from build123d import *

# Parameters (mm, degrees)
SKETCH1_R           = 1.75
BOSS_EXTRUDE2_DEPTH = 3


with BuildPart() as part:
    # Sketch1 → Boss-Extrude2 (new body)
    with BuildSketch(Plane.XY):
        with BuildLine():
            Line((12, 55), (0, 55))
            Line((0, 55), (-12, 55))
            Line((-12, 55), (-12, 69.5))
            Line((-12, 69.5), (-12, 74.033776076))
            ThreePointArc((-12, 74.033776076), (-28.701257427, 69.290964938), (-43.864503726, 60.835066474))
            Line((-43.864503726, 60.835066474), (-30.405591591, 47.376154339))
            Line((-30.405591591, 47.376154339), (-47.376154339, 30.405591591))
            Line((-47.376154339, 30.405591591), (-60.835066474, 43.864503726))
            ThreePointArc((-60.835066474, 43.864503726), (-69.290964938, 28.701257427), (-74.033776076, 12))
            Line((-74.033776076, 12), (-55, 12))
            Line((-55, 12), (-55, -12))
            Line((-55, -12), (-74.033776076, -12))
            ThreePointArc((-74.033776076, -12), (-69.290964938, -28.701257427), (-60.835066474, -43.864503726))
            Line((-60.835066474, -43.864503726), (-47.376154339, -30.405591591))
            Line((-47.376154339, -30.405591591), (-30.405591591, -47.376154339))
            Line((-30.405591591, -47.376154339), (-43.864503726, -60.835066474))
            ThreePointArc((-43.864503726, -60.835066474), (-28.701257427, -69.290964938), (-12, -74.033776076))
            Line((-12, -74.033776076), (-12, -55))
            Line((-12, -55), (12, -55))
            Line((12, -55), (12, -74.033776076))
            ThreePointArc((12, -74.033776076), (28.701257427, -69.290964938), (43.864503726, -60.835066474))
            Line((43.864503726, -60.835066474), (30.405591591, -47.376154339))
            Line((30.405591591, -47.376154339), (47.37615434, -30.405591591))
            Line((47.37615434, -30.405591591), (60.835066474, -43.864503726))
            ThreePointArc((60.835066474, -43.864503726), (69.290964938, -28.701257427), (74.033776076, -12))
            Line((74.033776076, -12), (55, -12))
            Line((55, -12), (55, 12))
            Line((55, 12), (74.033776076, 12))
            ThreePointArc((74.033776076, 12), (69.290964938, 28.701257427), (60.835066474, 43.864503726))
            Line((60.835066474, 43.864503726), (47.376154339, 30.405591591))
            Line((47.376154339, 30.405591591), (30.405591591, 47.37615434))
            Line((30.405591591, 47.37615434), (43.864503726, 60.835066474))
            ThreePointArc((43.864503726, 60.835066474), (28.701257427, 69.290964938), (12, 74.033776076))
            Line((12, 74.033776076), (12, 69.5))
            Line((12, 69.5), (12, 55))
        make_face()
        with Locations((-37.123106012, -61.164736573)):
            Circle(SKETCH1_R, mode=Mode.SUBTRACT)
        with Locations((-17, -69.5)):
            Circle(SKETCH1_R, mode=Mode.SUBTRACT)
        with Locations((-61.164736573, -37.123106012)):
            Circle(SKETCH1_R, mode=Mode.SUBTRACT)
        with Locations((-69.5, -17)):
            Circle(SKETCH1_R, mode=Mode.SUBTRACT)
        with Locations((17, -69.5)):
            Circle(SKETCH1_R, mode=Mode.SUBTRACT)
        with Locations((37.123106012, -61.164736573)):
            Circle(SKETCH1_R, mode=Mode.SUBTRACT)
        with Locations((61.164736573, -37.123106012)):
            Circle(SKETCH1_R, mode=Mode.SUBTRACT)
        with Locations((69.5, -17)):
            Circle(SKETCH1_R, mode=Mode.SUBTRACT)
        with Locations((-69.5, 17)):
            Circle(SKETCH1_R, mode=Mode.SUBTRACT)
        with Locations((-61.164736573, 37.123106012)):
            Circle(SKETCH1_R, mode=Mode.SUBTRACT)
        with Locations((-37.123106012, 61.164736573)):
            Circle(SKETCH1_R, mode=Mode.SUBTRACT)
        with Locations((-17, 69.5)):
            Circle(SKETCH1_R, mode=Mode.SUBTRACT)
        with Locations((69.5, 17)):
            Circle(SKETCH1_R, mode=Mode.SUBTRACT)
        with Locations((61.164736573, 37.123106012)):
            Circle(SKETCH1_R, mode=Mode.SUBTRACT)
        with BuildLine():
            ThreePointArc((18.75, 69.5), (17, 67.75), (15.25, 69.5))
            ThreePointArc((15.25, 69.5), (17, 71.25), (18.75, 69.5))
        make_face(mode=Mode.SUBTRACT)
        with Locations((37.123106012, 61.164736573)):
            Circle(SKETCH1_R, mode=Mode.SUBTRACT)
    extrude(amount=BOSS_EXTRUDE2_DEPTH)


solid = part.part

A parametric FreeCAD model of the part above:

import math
import FreeCAD as App
import Part
import Sketcher

doc = App.newDocument("Part")
body = doc.addObject("PartDesign::Body", "Body")

# Sketch on XY plane
sketch1 = doc.addObject("Sketcher::SketchObject", "Sketch")
body.addObject(sketch1)
sketch1.AttachmentSupport = (doc.XY_Plane, [""])
sketch1.MapMode = "FlatFace"
sketch1.addGeometry([
    Part.LineSegment(App.Vector(12, 55, 0), App.Vector(-12, 55, 0)),  # 0
    Part.LineSegment(App.Vector(-12, 55, 0), App.Vector(-12, 74.033776, 0)),  # 1
    Part.ArcOfCircle(Part.Circle(App.Vector(0, 0, 0), App.Vector(0, 0, 1), 75), math.radians(99.206896), math.radians(125.793104)),  # 2
    Part.LineSegment(App.Vector(-43.864504, 60.835066, 0), App.Vector(-30.405592, 47.376154, 0)),  # 3
    Part.LineSegment(App.Vector(-30.405592, 47.376154, 0), App.Vector(-47.376154, 30.405592, 0)),  # 4
    Part.LineSegment(App.Vector(-47.376154, 30.405592, 0), App.Vector(-60.835066, 43.864504, 0)),  # 5
    Part.ArcOfCircle(Part.Circle(App.Vector(0, 0, 0), App.Vector(0, 0, 1), 75), math.radians(144.206896), math.radians(170.793104)),  # 6
    Part.LineSegment(App.Vector(-74.033776, 12, 0), App.Vector(-55, 12, 0)),  # 7
    Part.LineSegment(App.Vector(-55, 12, 0), App.Vector(-55, -12, 0)),  # 8
    Part.LineSegment(App.Vector(-55, -12, 0), App.Vector(-74.033776, -12, 0)),  # 9
    Part.ArcOfCircle(Part.Circle(App.Vector(0, 0, 0), App.Vector(0, 0, 1), 75), math.radians(-170.793104), math.radians(-144.206896)),  # 10
    Part.LineSegment(App.Vector(-60.835066, -43.864504, 0), App.Vector(-47.376154, -30.405592, 0)),  # 11
    Part.LineSegment(App.Vector(-47.376154, -30.405592, 0), App.Vector(-30.405592, -47.376154, 0)),  # 12
    Part.LineSegment(App.Vector(-30.405592, -47.376154, 0), App.Vector(-43.864504, -60.835066, 0)),  # 13
    Part.ArcOfCircle(Part.Circle(App.Vector(0, 0, 0), App.Vector(0, 0, 1), 75), math.radians(-125.793104), math.radians(-99.206896)),  # 14
    Part.LineSegment(App.Vector(-12, -74.033776, 0), App.Vector(-12, -55, 0)),  # 15
    Part.LineSegment(App.Vector(-12, -55, 0), App.Vector(12, -55, 0)),  # 16
    Part.LineSegment(App.Vector(12, -55, 0), App.Vector(12, -74.033776, 0)),  # 17
    Part.ArcOfCircle(Part.Circle(App.Vector(0, 0, 0), App.Vector(0, 0, 1), 75), math.radians(-80.793104), math.radians(-54.206896)),  # 18
    Part.LineSegment(App.Vector(43.864504, -60.835066, 0), App.Vector(30.405592, -47.376154, 0)),  # 19
    Part.LineSegment(App.Vector(30.405592, -47.376154, 0), App.Vector(47.376154, -30.405592, 0)),  # 20
    Part.LineSegment(App.Vector(47.376154, -30.405592, 0), App.Vector(60.835066, -43.864504, 0)),  # 21
    Part.ArcOfCircle(Part.Circle(App.Vector(0, 0, 0), App.Vector(0, 0, 1), 75), math.radians(-35.793104), math.radians(-9.206896)),  # 22
    Part.LineSegment(App.Vector(74.033776, -12, 0), App.Vector(55, -12, 0)),  # 23
    Part.LineSegment(App.Vector(55, -12, 0), App.Vector(55, 12, 0)),  # 24
    Part.LineSegment(App.Vector(55, 12, 0), App.Vector(74.033776, 12, 0)),  # 25
    Part.ArcOfCircle(Part.Circle(App.Vector(0, 0, 0), App.Vector(0, 0, 1), 75), math.radians(9.206896), math.radians(35.793104)),  # 26
    Part.LineSegment(App.Vector(60.835066, 43.864504, 0), App.Vector(47.376154, 30.405592, 0)),  # 27
    Part.LineSegment(App.Vector(47.376154, 30.405592, 0), App.Vector(30.405592, 47.376154, 0)),  # 28
    Part.LineSegment(App.Vector(30.405592, 47.376154, 0), App.Vector(43.864504, 60.835066, 0)),  # 29
    Part.ArcOfCircle(Part.Circle(App.Vector(0, 0, 0), App.Vector(0, 0, 1), 75), math.radians(54.206896), math.radians(80.793104)),  # 30
    Part.LineSegment(App.Vector(12, 74.033776, 0), App.Vector(12, 55, 0)),  # 31
    Part.Circle(App.Vector(-37.123106, -61.164737, 0), App.Vector(0, 0, 1), 1.75),  # 32
    Part.Circle(App.Vector(-61.164737, -37.123106, 0), App.Vector(0, 0, 1), 1.75),  # 33
    Part.Circle(App.Vector(-17, -69.5, 0), App.Vector(0, 0, 1), 1.75),  # 34
    Part.Circle(App.Vector(-69.5, -17, 0), App.Vector(0, 0, 1), 1.75),  # 35
    Part.Circle(App.Vector(17, -69.5, 0), App.Vector(0, 0, 1), 1.75),  # 36
    Part.Circle(App.Vector(37.123106, -61.164737, 0), App.Vector(0, 0, 1), 1.75),  # 37
    Part.Circle(App.Vector(61.164737, -37.123106, 0), App.Vector(0, 0, 1), 1.75),  # 38
    Part.Circle(App.Vector(69.5, -17, 0), App.Vector(0, 0, 1), 1.75),  # 39
    Part.Circle(App.Vector(-69.5, 17, 0), App.Vector(0, 0, 1), 1.75),  # 40
    Part.Circle(App.Vector(-61.164737, 37.123106, 0), App.Vector(0, 0, 1), 1.75),  # 41
    Part.Circle(App.Vector(-37.123106, 61.164737, 0), App.Vector(0, 0, 1), 1.75),  # 42
    Part.Circle(App.Vector(-17, 69.5, 0), App.Vector(0, 0, 1), 1.75),  # 43
    Part.Circle(App.Vector(69.5, 17, 0), App.Vector(0, 0, 1), 1.75),  # 44
    Part.Circle(App.Vector(17, 69.5, 0), App.Vector(0, 0, 1), 1.75),  # 45
    Part.Circle(App.Vector(61.164737, 37.123106, 0), App.Vector(0, 0, 1), 1.75),  # 46
    Part.Circle(App.Vector(37.123106, 61.164737, 0), App.Vector(0, 0, 1), 1.75),  # 47
], False)
sketch1.addConstraint([
    Sketcher.Constraint("Coincident", 0, 2, 1, 1),
    Sketcher.Constraint("Coincident", 1, 2, 2, 1),
    Sketcher.Constraint("Coincident", 2, 2, 3, 1),
    Sketcher.Constraint("Coincident", 3, 2, 4, 1),
    Sketcher.Constraint("Coincident", 4, 2, 5, 1),
    Sketcher.Constraint("Coincident", 5, 2, 6, 1),
    Sketcher.Constraint("Coincident", 6, 2, 7, 1),
    Sketcher.Constraint("Coincident", 7, 2, 8, 1),
    Sketcher.Constraint("Coincident", 8, 2, 9, 1),
    Sketcher.Constraint("Coincident", 9, 2, 10, 1),
    Sketcher.Constraint("Coincident", 10, 2, 11, 1),
    Sketcher.Constraint("Coincident", 11, 2, 12, 1),
    Sketcher.Constraint("Coincident", 12, 2, 13, 1),
    Sketcher.Constraint("Coincident", 13, 2, 14, 1),
    Sketcher.Constraint("Coincident", 14, 2, 15, 1),
    Sketcher.Constraint("Coincident", 15, 2, 16, 1),
    Sketcher.Constraint("Coincident", 16, 2, 17, 1),
    Sketcher.Constraint("Coincident", 17, 2, 18, 1),
    Sketcher.Constraint("Coincident", 18, 2, 19, 1),
    Sketcher.Constraint("Coincident", 19, 2, 20, 1),
    Sketcher.Constraint("Coincident", 20, 2, 21, 1),
    Sketcher.Constraint("Coincident", 21, 2, 22, 1),
    Sketcher.Constraint("Coincident", 22, 2, 23, 1),
    Sketcher.Constraint("Coincident", 23, 2, 24, 1),
    Sketcher.Constraint("Coincident", 24, 2, 25, 1),
    Sketcher.Constraint("Coincident", 25, 2, 26, 1),
    Sketcher.Constraint("Coincident", 26, 2, 27, 1),
    Sketcher.Constraint("Coincident", 27, 2, 28, 1),
    Sketcher.Constraint("Coincident", 28, 2, 29, 1),
    Sketcher.Constraint("Coincident", 29, 2, 30, 1),
    Sketcher.Constraint("Coincident", 30, 2, 31, 1),
    Sketcher.Constraint("Coincident", 31, 2, 0, 1),
    Sketcher.Constraint("Horizontal", 0),
    Sketcher.Constraint("Vertical", 1),
    Sketcher.Constraint("Horizontal", 7),
    Sketcher.Constraint("Vertical", 8),
    Sketcher.Constraint("Horizontal", 9),
    Sketcher.Constraint("Vertical", 15),
    Sketcher.Constraint("Horizontal", 16),
    Sketcher.Constraint("Vertical", 17),
    Sketcher.Constraint("Horizontal", 23),
    Sketcher.Constraint("Vertical", 24),
    Sketcher.Constraint("Horizontal", 25),
    Sketcher.Constraint("Vertical", 31),
    Sketcher.Constraint("Coincident", 2, 3, -1, 1),
    Sketcher.Constraint("Coincident", 6, 3, -1, 1),
    Sketcher.Constraint("Coincident", 10, 3, -1, 1),
    Sketcher.Constraint("Coincident", 14, 3, -1, 1),
    Sketcher.Constraint("Coincident", 18, 3, -1, 1),
    Sketcher.Constraint("Coincident", 22, 3, -1, 1),
    Sketcher.Constraint("Coincident", 26, 3, -1, 1),
    Sketcher.Constraint("Coincident", 30, 3, -1, 1),
    Sketcher.Constraint("Equal", 2, 6),
    Sketcher.Constraint("Equal", 6, 10),
    Sketcher.Constraint("Equal", 10, 14),
    Sketcher.Constraint("Equal", 14, 18),
    Sketcher.Constraint("Equal", 18, 22),
    Sketcher.Constraint("Equal", 22, 26),
    Sketcher.Constraint("Equal", 26, 30),
    Sketcher.Constraint("Equal", 32, 33),
    Sketcher.Constraint("Equal", 33, 34),
    Sketcher.Constraint("Equal", 34, 35),
    Sketcher.Constraint("Equal", 35, 36),
    Sketcher.Constraint("Equal", 36, 37),
    Sketcher.Constraint("Equal", 37, 38),
    Sketcher.Constraint("Equal", 38, 39),
    Sketcher.Constraint("Equal", 39, 40),
    Sketcher.Constraint("Equal", 40, 41),
    Sketcher.Constraint("Equal", 41, 42),
    Sketcher.Constraint("Equal", 42, 43),
    Sketcher.Constraint("Equal", 43, 44),
    Sketcher.Constraint("Equal", 44, 45),
    Sketcher.Constraint("Equal", 45, 46),
    Sketcher.Constraint("Equal", 46, 47),
    Sketcher.Constraint("Symmetric", 39, 3, 40, 3, -1, 1),
    Sketcher.Constraint("Symmetric", 38, 3, 41, 3, -1, 1),
    Sketcher.Constraint("Symmetric", 37, 3, 42, 3, -1, 1),
    Sketcher.Constraint("Symmetric", 36, 3, 43, 3, -1, 1),
    Sketcher.Constraint("Symmetric", 35, 3, 44, 3, -1, 1),
    Sketcher.Constraint("Symmetric", 34, 3, 45, 3, -1, 1),
    Sketcher.Constraint("Symmetric", 33, 3, 46, 3, -1, 1),
    Sketcher.Constraint("Symmetric", 32, 3, 47, 3, -1, 1),
    Sketcher.Constraint("Symmetric", 0, 2, 16, 2, -1, 1),
    Sketcher.Constraint("Symmetric", 3, 2, 19, 2, -1, 1),
    Sketcher.Constraint("Symmetric", 4, 2, 20, 2, -1, 1),
    Sketcher.Constraint("Symmetric", 7, 2, 23, 2, -1, 1),
    Sketcher.Constraint("Symmetric", 11, 2, 27, 2, -1, 1),
    Sketcher.Constraint("Symmetric", 12, 2, 28, 2, -1, 1),
    Sketcher.Constraint("Symmetric", 34, 3, 36, 3, -2),
    Sketcher.Constraint("Symmetric", 32, 3, 37, 3, -2),
    Sketcher.Constraint("Symmetric", 33, 3, 38, 3, -2),
    Sketcher.Constraint("Symmetric", 35, 3, 39, 3, -2),
    Sketcher.Constraint("Symmetric", 12, 2, 19, 2, -2),
    Sketcher.Constraint("Symmetric", 11, 2, 20, 2, -2),
    Sketcher.Constraint("Perpendicular", 3, 4),
    Sketcher.Constraint("Perpendicular", 4, 5),
    Sketcher.Constraint("Perpendicular", 5, 11),
    Sketcher.Constraint("Perpendicular", 11, 12),
    Sketcher.Constraint("Perpendicular", 12, 13),
    Sketcher.Constraint("Perpendicular", 13, 19),
    Sketcher.Constraint("Perpendicular", 20, 21),
    Sketcher.Constraint("Perpendicular", 21, 27),
    Sketcher.Constraint("Perpendicular", 28, 29),
    Sketcher.Constraint("Horizontal", 14, 2, 17, 2),
    Sketcher.Constraint("Horizontal", 9, 2, 22, 2),
    Sketcher.Constraint("Horizontal", 7, 2, 24, 2),
    Sketcher.Constraint("Horizontal", 1, 2, 30, 2),
    Sketcher.Constraint("Equal", 25, 1),
    Sketcher.Constraint("Equal", 16, 8),
    Sketcher.Constraint("Equal", 3, 5),
    Sketcher.Constraint("Radius", 2, 75.0),
    Sketcher.Constraint("Diameter", 32, 3.5),
    Sketcher.Constraint("DistanceX", 0, 2, 0, 1, 24.0),
    Sketcher.Constraint("Distance", 4, 24.0),
    Sketcher.Constraint("DistanceX", 34, 3, -1, 1, 17.0),
    Sketcher.Constraint("DistanceY", 35, 3, -1, 1, 17.0),
    Sketcher.Constraint("DistanceY", -1, 1, 0, 2, 55.0),
    Sketcher.Constraint("DistanceY", 34, 3, -1, 1, 69.5),
    Sketcher.Constraint("DistanceX", 35, 3, -1, 1, 69.5),
    Sketcher.Constraint("DistanceX", 3, 2, -1, 1, 30.405592),
    Sketcher.Constraint("DistanceX", 33, 3, 32, 3, 24.041631),
    Sketcher.Constraint("DistanceY", 32, 3, 33, 3, 24.041631),
    Sketcher.Constraint("DistanceY", 42, 3, 1, 2, 12.86904),
    Sketcher.Constraint("DistanceX", 4, 2, 42, 3, 10.253048),
])
pad1 = doc.addObject("PartDesign::Pad", "Pad")
body.addObject(pad1)
pad1.Profile = sketch1
pad1.Length = 3

doc.recompute()
